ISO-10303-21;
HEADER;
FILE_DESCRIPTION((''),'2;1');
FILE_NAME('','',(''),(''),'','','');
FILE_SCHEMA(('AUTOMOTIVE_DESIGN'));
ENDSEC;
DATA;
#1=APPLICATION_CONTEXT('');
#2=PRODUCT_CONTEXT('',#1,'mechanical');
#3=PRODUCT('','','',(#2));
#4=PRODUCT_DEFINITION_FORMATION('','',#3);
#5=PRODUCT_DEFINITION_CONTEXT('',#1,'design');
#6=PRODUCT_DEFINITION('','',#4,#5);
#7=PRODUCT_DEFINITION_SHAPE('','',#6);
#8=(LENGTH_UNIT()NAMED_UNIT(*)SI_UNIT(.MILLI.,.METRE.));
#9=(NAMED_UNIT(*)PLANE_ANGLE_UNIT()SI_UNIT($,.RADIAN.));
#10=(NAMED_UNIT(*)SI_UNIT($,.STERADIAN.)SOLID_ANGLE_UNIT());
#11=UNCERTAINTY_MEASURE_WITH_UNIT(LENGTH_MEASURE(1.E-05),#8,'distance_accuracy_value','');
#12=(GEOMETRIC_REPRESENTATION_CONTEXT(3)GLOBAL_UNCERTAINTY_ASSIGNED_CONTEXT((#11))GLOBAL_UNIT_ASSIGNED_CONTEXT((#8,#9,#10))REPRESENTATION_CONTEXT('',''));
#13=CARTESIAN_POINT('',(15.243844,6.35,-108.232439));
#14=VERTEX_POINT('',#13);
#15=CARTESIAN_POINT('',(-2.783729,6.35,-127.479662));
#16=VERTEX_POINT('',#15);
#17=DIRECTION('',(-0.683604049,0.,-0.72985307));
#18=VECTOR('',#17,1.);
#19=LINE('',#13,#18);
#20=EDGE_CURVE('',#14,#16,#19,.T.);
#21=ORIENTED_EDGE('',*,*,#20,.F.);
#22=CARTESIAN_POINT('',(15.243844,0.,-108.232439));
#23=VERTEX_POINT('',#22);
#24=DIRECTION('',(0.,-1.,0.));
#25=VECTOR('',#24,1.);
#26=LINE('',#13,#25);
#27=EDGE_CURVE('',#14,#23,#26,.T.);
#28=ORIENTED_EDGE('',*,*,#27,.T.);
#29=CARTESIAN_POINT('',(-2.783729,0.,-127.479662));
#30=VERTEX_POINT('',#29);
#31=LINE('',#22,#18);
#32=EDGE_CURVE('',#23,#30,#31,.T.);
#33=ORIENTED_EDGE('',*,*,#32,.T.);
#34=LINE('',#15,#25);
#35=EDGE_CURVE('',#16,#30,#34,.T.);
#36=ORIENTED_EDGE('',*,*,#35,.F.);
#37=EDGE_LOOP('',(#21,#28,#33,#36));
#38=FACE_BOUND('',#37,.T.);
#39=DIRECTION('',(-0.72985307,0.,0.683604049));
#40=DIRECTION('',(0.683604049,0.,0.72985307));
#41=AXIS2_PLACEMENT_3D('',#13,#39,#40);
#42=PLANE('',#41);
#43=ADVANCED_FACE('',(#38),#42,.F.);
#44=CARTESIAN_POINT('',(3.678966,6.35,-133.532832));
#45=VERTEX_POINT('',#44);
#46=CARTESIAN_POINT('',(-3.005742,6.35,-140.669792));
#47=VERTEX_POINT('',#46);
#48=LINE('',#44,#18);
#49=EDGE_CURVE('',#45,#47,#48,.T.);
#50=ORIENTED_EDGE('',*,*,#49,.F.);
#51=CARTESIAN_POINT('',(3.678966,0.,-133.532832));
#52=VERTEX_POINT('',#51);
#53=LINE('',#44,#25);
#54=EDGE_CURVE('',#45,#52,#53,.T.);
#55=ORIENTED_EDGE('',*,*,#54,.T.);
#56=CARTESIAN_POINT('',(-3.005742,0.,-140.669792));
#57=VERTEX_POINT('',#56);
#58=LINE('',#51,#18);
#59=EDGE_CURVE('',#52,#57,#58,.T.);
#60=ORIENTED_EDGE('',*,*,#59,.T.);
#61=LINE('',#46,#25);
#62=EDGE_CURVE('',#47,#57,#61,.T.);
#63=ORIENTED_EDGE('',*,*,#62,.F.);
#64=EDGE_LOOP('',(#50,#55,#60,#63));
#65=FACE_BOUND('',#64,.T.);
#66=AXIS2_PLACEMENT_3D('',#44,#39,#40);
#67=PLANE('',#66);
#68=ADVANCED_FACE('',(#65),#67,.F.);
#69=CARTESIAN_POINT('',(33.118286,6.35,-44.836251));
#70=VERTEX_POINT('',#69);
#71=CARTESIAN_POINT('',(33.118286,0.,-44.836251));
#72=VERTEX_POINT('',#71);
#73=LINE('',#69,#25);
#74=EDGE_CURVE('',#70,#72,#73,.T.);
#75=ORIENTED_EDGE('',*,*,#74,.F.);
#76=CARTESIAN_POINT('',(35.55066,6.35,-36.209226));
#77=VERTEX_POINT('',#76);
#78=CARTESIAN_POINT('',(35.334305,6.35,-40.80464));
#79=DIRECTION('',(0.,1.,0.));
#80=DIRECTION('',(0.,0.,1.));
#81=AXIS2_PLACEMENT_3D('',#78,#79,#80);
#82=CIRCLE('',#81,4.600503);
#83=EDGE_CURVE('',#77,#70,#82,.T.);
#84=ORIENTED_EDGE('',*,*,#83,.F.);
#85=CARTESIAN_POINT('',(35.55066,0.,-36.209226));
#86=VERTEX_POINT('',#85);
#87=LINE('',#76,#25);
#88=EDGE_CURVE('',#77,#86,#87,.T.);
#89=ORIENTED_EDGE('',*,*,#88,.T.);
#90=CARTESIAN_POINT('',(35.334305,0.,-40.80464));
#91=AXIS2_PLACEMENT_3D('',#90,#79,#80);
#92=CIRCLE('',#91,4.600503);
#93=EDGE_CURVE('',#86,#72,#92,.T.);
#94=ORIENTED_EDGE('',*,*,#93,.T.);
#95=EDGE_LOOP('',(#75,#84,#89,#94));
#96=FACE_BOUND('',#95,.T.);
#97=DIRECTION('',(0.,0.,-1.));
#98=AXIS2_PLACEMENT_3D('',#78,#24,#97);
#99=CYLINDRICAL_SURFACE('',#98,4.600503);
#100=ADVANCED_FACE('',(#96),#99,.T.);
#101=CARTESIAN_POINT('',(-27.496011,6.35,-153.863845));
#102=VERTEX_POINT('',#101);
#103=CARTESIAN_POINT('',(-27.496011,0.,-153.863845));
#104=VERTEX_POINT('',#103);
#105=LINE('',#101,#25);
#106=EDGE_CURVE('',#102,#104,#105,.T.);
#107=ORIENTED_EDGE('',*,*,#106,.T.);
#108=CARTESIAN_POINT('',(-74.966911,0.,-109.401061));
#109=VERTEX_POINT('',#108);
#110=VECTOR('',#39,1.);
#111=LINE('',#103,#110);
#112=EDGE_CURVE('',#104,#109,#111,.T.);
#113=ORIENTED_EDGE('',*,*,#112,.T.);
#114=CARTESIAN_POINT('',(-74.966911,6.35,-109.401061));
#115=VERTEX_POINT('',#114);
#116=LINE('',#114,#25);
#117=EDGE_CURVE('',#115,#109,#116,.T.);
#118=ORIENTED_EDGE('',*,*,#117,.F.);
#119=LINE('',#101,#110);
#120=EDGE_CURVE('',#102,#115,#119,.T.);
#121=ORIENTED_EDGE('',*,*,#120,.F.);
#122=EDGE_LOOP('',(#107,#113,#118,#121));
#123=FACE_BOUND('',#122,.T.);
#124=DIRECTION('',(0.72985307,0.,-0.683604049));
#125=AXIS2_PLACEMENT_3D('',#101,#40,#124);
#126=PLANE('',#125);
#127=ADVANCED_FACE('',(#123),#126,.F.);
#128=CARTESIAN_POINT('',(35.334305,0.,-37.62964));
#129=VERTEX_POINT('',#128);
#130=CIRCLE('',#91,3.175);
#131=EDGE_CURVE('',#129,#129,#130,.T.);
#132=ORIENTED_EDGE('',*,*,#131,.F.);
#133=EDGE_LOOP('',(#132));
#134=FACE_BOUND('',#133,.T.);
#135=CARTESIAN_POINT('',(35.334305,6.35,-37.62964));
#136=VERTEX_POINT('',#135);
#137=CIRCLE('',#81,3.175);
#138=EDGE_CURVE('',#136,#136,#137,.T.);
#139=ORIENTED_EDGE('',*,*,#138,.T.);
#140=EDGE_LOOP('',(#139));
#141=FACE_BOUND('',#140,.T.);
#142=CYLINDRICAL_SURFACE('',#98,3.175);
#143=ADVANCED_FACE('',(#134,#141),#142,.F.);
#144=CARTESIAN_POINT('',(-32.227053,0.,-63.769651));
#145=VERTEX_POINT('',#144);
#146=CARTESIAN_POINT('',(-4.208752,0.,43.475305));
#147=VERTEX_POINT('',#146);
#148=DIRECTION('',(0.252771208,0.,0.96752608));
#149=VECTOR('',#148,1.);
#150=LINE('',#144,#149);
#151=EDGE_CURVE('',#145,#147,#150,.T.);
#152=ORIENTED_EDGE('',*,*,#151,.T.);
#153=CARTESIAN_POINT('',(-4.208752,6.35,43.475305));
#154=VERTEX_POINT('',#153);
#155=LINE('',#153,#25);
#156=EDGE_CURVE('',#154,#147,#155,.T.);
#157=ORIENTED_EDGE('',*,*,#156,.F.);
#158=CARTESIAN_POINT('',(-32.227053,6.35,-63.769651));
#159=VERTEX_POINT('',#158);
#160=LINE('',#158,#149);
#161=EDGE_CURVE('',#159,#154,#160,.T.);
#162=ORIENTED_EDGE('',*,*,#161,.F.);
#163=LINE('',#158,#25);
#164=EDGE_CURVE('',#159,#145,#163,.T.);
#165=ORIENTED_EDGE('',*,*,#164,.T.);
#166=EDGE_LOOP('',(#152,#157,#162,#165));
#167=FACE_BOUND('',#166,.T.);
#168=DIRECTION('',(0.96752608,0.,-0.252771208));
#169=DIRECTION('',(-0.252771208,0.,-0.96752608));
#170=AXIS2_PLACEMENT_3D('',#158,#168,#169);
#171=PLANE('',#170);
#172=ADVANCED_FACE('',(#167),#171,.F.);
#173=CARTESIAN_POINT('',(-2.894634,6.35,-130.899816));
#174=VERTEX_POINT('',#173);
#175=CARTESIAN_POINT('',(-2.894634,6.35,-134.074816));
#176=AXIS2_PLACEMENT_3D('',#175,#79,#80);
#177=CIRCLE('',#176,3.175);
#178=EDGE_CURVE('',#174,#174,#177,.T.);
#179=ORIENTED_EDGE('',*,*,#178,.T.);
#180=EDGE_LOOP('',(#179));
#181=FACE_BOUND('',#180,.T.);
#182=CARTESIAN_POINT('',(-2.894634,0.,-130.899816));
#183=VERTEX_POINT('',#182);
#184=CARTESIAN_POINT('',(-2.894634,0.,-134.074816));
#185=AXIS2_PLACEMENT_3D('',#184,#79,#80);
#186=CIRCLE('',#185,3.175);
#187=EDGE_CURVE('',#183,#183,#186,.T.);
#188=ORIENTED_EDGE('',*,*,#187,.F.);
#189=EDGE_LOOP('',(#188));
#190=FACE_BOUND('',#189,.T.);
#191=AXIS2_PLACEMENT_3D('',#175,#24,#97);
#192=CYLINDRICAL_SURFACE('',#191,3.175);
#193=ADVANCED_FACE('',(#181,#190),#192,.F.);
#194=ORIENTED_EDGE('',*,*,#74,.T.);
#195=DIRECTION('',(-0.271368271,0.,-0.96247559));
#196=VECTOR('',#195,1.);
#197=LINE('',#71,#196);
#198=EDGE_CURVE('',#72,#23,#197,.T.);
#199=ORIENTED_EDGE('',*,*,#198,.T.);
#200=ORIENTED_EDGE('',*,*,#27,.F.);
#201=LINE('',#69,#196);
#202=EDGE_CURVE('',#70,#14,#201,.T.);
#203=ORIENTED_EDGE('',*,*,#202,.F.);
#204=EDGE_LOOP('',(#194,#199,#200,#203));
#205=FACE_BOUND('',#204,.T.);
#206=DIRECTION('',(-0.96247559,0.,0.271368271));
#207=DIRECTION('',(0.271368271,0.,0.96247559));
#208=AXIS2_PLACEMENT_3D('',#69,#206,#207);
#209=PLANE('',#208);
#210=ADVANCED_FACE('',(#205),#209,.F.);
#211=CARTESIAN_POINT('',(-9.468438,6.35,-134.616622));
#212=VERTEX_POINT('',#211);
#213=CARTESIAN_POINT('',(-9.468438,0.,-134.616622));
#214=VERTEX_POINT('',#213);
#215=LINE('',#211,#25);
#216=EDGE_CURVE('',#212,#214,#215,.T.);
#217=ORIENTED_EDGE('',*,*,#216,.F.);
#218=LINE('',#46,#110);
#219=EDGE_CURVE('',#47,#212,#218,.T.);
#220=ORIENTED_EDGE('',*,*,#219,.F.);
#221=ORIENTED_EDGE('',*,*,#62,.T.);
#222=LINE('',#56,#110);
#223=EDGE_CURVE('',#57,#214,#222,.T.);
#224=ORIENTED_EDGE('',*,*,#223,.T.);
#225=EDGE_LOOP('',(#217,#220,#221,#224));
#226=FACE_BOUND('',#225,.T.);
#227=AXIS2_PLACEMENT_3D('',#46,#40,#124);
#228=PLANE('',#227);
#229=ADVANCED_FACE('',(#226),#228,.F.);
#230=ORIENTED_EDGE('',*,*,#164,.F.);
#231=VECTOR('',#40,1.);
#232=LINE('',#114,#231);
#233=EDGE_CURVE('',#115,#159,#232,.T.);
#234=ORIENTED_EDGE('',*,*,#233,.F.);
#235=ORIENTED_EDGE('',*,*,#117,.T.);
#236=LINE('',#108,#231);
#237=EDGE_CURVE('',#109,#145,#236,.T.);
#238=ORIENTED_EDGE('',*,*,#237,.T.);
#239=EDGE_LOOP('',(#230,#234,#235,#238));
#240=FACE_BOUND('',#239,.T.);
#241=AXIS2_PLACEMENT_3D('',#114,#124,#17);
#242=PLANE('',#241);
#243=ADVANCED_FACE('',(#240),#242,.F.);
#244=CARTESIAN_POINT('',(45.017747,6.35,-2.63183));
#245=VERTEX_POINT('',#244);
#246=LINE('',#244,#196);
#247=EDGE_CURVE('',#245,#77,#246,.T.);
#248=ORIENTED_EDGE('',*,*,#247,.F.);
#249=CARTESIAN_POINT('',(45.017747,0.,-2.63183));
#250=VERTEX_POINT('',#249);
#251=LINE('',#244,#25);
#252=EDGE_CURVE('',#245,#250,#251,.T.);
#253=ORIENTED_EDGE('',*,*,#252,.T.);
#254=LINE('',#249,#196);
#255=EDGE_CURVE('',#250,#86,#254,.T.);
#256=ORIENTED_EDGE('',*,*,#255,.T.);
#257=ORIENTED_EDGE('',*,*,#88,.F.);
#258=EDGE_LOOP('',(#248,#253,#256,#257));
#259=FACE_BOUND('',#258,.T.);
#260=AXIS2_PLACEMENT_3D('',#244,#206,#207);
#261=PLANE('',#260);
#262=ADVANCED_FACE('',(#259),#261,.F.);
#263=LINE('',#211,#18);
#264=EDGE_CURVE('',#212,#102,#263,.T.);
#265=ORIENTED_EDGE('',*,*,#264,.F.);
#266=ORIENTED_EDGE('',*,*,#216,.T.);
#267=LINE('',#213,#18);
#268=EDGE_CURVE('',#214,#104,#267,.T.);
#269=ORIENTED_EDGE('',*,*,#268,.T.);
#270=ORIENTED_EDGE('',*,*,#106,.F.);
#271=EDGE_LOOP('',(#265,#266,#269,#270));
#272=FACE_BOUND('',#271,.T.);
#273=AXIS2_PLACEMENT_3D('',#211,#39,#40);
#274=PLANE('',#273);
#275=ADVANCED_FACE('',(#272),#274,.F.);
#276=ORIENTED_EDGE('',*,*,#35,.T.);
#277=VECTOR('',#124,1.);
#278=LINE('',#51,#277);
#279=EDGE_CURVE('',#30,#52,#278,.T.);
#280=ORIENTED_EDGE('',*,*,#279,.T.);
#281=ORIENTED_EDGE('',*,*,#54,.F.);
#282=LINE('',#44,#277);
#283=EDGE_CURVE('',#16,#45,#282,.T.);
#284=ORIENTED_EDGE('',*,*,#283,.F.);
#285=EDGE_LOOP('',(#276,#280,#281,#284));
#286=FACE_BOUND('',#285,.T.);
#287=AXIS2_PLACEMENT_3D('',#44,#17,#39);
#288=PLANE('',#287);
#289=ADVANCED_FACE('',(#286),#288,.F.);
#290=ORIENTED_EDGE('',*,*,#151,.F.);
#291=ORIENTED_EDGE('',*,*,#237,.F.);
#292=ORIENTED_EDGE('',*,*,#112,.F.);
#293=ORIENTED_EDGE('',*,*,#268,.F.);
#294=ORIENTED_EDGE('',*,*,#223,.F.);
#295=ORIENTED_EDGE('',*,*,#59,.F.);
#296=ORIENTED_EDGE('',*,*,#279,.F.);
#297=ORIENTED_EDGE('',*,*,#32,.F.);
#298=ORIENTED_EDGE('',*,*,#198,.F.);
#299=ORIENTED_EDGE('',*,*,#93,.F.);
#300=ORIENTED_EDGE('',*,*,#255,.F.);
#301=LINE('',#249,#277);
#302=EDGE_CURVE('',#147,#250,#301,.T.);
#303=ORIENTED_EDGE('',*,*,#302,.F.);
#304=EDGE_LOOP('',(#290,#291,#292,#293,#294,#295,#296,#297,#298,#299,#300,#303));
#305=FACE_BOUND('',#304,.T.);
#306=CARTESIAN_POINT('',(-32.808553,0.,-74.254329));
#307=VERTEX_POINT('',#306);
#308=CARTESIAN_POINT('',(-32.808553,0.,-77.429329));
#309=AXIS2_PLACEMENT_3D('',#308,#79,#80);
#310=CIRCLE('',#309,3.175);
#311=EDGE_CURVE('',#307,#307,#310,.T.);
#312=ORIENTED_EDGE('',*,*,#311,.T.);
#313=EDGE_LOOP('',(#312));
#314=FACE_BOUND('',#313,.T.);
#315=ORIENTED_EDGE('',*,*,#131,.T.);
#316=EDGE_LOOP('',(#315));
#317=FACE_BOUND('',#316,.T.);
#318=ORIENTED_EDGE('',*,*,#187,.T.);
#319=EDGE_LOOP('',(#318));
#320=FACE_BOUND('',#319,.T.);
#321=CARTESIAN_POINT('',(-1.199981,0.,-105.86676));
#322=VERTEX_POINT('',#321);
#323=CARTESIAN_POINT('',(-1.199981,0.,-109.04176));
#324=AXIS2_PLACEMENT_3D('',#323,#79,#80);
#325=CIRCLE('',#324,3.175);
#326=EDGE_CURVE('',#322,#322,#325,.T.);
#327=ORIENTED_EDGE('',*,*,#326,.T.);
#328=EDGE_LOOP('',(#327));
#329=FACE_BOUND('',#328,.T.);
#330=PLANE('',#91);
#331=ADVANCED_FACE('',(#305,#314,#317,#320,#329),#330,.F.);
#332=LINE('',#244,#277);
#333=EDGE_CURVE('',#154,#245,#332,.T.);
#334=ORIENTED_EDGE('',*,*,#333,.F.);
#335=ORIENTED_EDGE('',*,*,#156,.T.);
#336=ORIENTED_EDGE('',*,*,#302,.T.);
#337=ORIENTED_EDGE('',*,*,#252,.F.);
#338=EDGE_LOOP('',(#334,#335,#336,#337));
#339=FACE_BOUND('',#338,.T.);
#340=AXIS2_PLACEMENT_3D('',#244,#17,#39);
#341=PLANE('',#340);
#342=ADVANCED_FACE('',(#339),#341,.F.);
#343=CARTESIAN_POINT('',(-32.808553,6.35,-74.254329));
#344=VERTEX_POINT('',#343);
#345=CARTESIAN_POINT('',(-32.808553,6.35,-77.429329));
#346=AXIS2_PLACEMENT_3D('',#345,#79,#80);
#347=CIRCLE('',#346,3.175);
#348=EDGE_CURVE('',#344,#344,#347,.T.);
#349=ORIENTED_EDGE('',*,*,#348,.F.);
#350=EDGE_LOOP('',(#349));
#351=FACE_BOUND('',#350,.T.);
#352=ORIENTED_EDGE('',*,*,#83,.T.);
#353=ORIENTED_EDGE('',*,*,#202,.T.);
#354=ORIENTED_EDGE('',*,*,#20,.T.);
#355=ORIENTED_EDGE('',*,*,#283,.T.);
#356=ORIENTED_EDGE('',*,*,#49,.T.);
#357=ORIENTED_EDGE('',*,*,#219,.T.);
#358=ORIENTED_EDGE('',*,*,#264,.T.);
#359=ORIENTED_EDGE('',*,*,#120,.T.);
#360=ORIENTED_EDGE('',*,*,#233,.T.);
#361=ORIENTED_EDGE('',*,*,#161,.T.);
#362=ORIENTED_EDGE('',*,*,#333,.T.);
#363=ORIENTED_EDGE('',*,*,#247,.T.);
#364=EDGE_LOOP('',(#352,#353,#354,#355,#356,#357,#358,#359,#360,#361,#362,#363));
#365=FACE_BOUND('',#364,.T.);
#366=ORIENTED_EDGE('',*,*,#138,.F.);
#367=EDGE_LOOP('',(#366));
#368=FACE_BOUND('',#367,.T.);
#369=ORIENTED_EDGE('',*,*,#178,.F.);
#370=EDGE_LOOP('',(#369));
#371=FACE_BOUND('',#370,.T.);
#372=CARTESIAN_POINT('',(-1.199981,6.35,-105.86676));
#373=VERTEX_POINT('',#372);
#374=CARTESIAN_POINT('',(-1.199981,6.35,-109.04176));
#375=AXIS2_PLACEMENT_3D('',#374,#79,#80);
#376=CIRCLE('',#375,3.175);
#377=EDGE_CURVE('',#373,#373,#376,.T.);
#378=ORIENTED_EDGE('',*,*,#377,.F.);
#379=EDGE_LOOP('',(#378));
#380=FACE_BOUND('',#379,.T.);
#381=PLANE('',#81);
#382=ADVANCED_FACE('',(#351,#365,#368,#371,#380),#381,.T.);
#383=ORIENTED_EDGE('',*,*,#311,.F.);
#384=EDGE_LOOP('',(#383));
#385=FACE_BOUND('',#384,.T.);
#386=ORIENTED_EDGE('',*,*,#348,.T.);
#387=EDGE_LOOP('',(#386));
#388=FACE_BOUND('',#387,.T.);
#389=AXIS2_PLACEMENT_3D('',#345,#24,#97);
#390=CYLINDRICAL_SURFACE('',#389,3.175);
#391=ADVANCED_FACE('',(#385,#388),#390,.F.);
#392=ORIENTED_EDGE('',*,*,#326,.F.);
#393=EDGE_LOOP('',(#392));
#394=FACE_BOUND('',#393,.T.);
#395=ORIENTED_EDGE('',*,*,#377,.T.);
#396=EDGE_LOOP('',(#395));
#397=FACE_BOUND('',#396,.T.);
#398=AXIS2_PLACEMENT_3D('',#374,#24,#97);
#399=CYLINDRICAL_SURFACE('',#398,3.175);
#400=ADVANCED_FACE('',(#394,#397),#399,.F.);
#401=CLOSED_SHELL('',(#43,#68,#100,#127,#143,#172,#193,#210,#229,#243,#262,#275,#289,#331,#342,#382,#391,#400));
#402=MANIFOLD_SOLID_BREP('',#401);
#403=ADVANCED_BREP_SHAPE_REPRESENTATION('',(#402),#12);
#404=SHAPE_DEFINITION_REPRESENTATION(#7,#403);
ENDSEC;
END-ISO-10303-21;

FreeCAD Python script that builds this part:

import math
import FreeCAD as App
import Part
import Sketcher
from FreeCAD import Vector
Q = App.Units.Quantity

doc = App.newDocument("Part")
body = doc.addObject("PartDesign::Body", "Body")

sketch1 = body.newObject("Sketcher::SketchObject", "Sketch")
sketch1.AttachmentSupport = (doc.getObject("XZ_Plane"), [""])
sketch1.MapMode = "FlatFace"
sketch1.addGeometry([
    Part.LineSegment(Vector(45, -2.6, 0), Vector(35.6, -36.2, 0)),
    Part.ArcOfCircle(Part.Circle(Vector(35.3, -40.8, 0), Vector(0, 0, 1), 4.6), math.radians(-119), math.radians(87)),
    Part.LineSegment(Vector(33.1, -44.8, 0), Vector(15.2, -108.2, 0)),
    Part.LineSegment(Vector(15.2, -108.2, 0), Vector(-2.8, -127.5, 0)),
    Part.LineSegment(Vector(-2.8, -127.5, 0), Vector(3.7, -133.5, 0)),
    Part.LineSegment(Vector(3.7, -133.5, 0), Vector(-3, -140.7, 0)),
    Part.LineSegment(Vector(-3, -140.7, 0), Vector(-9.5, -134.6, 0)),
    Part.LineSegment(Vector(-9.5, -134.6, 0), Vector(-27.5, -153.9, 0)),
    Part.LineSegment(Vector(-27.5, -153.9, 0), Vector(-75, -109.4, 0)),
    Part.LineSegment(Vector(-75, -109.4, 0), Vector(-32.2, -63.8, 0)),
    Part.LineSegment(Vector(-32.2, -63.8, 0), Vector(-4.2, 43.5, 0)),
    Part.LineSegment(Vector(-4.2, 43.5, 0), Vector(45, -2.6, 0)),
    Part.Circle(Vector(-32.8, -77.4, 0), Vector(0, 0, 1), 3.2),
    Part.Circle(Vector(35.3, -40.8, 0), Vector(0, 0, 1), 3.2),
    Part.Circle(Vector(-1.2, -109, 0), Vector(0, 0, 1), 3.2),
    Part.Circle(Vector(-2.9, -134.1, 0), Vector(0, 0, 1), 3.2),
], False)
sketch1.addConstraint([
    Sketcher.Constraint("Coincident", 0, 2, 1, 2),
    Sketcher.Constraint("Coincident", 1, 1, 2, 1),
    Sketcher.Constraint("Coincident", 2, 2, 3, 1),
    Sketcher.Constraint("Coincident", 3, 2, 4, 1),
    Sketcher.Constraint("Coincident", 4, 2, 5, 1),
    Sketcher.Constraint("Coincident", 5, 2, 6, 1),
    Sketcher.Constraint("Coincident", 6, 2, 7, 1),
    Sketcher.Constraint("Coincident", 7, 2, 8, 1),
    Sketcher.Constraint("Coincident", 8, 2, 9, 1),
    Sketcher.Constraint("Coincident", 9, 2, 10, 1),
    Sketcher.Constraint("Coincident", 10, 2, 11, 1),
    Sketcher.Constraint("Coincident", 11, 2, 0, 1),
    Sketcher.Constraint("Coincident", 13, 3, 1, 3),
    Sketcher.Constraint("Equal", 12, 13),
    Sketcher.Constraint("Equal", 13, 14),
    Sketcher.Constraint("Equal", 14, 15),
    Sketcher.Constraint("Parallel", 0, 2),
    Sketcher.Constraint("Perpendicular", 3, 4),
    Sketcher.Constraint("Perpendicular", 4, 5),
    Sketcher.Constraint("Perpendicular", 5, 6),
    Sketcher.Constraint("Perpendicular", 6, 7),
    Sketcher.Constraint("Perpendicular", 7, 8),
    Sketcher.Constraint("Perpendicular", 8, 9),
    Sketcher.Constraint("Perpendicular", 9, 11),
    Sketcher.Constraint("Equal", 4, 6),
    Sketcher.Constraint("Equal", 3, 7),
    Sketcher.Constraint("Diameter", 12, Q("0.25 in")),
    Sketcher.Constraint("Radius", 1, Q("4.600503 mm")),
    Sketcher.Constraint("DistanceY", 2, 2, 1, 3, Q("67.427799 mm")),
    Sketcher.Constraint("DistanceY", 3, 2, 14, 3, Q("18.437902 mm")),
    Sketcher.Constraint("DistanceX", 15, 3, 4, 2, Q("6.573601 mm")),
    Sketcher.Constraint("DistanceX", 8, 2, 7, 2, Q("47.470901 mm")),
    Sketcher.Constraint("DistanceY", 8, 2, 14, 3, Q("0.359301 mm")),
    Sketcher.Constraint("DistanceX", 12, 3, 9, 2, Q("0.5815 mm")),
    Sketcher.Constraint("DistanceY", 9, 2, 1, 1, Q("18.9334 mm")),
    Sketcher.Constraint("DistanceX", 9, 2, 10, 2, Q("28.018301 mm")),
    Sketcher.Constraint("DistanceX", 10, 2, 11, 2, Q("49.226499 mm")),
    Sketcher.Constraint("Distance", 0, Q("34.886492 mm")),
    Sketcher.Constraint("Distance", 2, Q("65.86784 mm")),
    Sketcher.Constraint("Distance", 4, Q("8.85479 mm")),
    Sketcher.Constraint("Distance", 10, Q("110.844511 mm")),
    Sketcher.Constraint("DistanceY", 1, 3, -1, 1, Q("40.80464 mm")),
    Sketcher.Constraint("DistanceY", 12, 3, -1, 1, Q("77.429329 mm")),
    Sketcher.Constraint("DistanceX", 14, 3, -1, 1, Q("1.199981 mm")),
    Sketcher.Constraint("DistanceY", 14, 3, -1, 1, Q("109.04176 mm")),
    Sketcher.Constraint("DistanceX", -1, 1, 0, 2, Q("35.55066 mm")),
    Sketcher.Constraint("DistanceY", 1, 1, -1, 1, Q("44.836251 mm")),
    Sketcher.Constraint("DistanceY", 15, 3, 0, 2, Q("97.865589 mm")),
])
pad1 = body.newObject("PartDesign::Pad", "Pad")
pad1.Profile = sketch1
pad1.Length = Q("0.25 in")
pad1.Reversed = True

doc.recompute()
